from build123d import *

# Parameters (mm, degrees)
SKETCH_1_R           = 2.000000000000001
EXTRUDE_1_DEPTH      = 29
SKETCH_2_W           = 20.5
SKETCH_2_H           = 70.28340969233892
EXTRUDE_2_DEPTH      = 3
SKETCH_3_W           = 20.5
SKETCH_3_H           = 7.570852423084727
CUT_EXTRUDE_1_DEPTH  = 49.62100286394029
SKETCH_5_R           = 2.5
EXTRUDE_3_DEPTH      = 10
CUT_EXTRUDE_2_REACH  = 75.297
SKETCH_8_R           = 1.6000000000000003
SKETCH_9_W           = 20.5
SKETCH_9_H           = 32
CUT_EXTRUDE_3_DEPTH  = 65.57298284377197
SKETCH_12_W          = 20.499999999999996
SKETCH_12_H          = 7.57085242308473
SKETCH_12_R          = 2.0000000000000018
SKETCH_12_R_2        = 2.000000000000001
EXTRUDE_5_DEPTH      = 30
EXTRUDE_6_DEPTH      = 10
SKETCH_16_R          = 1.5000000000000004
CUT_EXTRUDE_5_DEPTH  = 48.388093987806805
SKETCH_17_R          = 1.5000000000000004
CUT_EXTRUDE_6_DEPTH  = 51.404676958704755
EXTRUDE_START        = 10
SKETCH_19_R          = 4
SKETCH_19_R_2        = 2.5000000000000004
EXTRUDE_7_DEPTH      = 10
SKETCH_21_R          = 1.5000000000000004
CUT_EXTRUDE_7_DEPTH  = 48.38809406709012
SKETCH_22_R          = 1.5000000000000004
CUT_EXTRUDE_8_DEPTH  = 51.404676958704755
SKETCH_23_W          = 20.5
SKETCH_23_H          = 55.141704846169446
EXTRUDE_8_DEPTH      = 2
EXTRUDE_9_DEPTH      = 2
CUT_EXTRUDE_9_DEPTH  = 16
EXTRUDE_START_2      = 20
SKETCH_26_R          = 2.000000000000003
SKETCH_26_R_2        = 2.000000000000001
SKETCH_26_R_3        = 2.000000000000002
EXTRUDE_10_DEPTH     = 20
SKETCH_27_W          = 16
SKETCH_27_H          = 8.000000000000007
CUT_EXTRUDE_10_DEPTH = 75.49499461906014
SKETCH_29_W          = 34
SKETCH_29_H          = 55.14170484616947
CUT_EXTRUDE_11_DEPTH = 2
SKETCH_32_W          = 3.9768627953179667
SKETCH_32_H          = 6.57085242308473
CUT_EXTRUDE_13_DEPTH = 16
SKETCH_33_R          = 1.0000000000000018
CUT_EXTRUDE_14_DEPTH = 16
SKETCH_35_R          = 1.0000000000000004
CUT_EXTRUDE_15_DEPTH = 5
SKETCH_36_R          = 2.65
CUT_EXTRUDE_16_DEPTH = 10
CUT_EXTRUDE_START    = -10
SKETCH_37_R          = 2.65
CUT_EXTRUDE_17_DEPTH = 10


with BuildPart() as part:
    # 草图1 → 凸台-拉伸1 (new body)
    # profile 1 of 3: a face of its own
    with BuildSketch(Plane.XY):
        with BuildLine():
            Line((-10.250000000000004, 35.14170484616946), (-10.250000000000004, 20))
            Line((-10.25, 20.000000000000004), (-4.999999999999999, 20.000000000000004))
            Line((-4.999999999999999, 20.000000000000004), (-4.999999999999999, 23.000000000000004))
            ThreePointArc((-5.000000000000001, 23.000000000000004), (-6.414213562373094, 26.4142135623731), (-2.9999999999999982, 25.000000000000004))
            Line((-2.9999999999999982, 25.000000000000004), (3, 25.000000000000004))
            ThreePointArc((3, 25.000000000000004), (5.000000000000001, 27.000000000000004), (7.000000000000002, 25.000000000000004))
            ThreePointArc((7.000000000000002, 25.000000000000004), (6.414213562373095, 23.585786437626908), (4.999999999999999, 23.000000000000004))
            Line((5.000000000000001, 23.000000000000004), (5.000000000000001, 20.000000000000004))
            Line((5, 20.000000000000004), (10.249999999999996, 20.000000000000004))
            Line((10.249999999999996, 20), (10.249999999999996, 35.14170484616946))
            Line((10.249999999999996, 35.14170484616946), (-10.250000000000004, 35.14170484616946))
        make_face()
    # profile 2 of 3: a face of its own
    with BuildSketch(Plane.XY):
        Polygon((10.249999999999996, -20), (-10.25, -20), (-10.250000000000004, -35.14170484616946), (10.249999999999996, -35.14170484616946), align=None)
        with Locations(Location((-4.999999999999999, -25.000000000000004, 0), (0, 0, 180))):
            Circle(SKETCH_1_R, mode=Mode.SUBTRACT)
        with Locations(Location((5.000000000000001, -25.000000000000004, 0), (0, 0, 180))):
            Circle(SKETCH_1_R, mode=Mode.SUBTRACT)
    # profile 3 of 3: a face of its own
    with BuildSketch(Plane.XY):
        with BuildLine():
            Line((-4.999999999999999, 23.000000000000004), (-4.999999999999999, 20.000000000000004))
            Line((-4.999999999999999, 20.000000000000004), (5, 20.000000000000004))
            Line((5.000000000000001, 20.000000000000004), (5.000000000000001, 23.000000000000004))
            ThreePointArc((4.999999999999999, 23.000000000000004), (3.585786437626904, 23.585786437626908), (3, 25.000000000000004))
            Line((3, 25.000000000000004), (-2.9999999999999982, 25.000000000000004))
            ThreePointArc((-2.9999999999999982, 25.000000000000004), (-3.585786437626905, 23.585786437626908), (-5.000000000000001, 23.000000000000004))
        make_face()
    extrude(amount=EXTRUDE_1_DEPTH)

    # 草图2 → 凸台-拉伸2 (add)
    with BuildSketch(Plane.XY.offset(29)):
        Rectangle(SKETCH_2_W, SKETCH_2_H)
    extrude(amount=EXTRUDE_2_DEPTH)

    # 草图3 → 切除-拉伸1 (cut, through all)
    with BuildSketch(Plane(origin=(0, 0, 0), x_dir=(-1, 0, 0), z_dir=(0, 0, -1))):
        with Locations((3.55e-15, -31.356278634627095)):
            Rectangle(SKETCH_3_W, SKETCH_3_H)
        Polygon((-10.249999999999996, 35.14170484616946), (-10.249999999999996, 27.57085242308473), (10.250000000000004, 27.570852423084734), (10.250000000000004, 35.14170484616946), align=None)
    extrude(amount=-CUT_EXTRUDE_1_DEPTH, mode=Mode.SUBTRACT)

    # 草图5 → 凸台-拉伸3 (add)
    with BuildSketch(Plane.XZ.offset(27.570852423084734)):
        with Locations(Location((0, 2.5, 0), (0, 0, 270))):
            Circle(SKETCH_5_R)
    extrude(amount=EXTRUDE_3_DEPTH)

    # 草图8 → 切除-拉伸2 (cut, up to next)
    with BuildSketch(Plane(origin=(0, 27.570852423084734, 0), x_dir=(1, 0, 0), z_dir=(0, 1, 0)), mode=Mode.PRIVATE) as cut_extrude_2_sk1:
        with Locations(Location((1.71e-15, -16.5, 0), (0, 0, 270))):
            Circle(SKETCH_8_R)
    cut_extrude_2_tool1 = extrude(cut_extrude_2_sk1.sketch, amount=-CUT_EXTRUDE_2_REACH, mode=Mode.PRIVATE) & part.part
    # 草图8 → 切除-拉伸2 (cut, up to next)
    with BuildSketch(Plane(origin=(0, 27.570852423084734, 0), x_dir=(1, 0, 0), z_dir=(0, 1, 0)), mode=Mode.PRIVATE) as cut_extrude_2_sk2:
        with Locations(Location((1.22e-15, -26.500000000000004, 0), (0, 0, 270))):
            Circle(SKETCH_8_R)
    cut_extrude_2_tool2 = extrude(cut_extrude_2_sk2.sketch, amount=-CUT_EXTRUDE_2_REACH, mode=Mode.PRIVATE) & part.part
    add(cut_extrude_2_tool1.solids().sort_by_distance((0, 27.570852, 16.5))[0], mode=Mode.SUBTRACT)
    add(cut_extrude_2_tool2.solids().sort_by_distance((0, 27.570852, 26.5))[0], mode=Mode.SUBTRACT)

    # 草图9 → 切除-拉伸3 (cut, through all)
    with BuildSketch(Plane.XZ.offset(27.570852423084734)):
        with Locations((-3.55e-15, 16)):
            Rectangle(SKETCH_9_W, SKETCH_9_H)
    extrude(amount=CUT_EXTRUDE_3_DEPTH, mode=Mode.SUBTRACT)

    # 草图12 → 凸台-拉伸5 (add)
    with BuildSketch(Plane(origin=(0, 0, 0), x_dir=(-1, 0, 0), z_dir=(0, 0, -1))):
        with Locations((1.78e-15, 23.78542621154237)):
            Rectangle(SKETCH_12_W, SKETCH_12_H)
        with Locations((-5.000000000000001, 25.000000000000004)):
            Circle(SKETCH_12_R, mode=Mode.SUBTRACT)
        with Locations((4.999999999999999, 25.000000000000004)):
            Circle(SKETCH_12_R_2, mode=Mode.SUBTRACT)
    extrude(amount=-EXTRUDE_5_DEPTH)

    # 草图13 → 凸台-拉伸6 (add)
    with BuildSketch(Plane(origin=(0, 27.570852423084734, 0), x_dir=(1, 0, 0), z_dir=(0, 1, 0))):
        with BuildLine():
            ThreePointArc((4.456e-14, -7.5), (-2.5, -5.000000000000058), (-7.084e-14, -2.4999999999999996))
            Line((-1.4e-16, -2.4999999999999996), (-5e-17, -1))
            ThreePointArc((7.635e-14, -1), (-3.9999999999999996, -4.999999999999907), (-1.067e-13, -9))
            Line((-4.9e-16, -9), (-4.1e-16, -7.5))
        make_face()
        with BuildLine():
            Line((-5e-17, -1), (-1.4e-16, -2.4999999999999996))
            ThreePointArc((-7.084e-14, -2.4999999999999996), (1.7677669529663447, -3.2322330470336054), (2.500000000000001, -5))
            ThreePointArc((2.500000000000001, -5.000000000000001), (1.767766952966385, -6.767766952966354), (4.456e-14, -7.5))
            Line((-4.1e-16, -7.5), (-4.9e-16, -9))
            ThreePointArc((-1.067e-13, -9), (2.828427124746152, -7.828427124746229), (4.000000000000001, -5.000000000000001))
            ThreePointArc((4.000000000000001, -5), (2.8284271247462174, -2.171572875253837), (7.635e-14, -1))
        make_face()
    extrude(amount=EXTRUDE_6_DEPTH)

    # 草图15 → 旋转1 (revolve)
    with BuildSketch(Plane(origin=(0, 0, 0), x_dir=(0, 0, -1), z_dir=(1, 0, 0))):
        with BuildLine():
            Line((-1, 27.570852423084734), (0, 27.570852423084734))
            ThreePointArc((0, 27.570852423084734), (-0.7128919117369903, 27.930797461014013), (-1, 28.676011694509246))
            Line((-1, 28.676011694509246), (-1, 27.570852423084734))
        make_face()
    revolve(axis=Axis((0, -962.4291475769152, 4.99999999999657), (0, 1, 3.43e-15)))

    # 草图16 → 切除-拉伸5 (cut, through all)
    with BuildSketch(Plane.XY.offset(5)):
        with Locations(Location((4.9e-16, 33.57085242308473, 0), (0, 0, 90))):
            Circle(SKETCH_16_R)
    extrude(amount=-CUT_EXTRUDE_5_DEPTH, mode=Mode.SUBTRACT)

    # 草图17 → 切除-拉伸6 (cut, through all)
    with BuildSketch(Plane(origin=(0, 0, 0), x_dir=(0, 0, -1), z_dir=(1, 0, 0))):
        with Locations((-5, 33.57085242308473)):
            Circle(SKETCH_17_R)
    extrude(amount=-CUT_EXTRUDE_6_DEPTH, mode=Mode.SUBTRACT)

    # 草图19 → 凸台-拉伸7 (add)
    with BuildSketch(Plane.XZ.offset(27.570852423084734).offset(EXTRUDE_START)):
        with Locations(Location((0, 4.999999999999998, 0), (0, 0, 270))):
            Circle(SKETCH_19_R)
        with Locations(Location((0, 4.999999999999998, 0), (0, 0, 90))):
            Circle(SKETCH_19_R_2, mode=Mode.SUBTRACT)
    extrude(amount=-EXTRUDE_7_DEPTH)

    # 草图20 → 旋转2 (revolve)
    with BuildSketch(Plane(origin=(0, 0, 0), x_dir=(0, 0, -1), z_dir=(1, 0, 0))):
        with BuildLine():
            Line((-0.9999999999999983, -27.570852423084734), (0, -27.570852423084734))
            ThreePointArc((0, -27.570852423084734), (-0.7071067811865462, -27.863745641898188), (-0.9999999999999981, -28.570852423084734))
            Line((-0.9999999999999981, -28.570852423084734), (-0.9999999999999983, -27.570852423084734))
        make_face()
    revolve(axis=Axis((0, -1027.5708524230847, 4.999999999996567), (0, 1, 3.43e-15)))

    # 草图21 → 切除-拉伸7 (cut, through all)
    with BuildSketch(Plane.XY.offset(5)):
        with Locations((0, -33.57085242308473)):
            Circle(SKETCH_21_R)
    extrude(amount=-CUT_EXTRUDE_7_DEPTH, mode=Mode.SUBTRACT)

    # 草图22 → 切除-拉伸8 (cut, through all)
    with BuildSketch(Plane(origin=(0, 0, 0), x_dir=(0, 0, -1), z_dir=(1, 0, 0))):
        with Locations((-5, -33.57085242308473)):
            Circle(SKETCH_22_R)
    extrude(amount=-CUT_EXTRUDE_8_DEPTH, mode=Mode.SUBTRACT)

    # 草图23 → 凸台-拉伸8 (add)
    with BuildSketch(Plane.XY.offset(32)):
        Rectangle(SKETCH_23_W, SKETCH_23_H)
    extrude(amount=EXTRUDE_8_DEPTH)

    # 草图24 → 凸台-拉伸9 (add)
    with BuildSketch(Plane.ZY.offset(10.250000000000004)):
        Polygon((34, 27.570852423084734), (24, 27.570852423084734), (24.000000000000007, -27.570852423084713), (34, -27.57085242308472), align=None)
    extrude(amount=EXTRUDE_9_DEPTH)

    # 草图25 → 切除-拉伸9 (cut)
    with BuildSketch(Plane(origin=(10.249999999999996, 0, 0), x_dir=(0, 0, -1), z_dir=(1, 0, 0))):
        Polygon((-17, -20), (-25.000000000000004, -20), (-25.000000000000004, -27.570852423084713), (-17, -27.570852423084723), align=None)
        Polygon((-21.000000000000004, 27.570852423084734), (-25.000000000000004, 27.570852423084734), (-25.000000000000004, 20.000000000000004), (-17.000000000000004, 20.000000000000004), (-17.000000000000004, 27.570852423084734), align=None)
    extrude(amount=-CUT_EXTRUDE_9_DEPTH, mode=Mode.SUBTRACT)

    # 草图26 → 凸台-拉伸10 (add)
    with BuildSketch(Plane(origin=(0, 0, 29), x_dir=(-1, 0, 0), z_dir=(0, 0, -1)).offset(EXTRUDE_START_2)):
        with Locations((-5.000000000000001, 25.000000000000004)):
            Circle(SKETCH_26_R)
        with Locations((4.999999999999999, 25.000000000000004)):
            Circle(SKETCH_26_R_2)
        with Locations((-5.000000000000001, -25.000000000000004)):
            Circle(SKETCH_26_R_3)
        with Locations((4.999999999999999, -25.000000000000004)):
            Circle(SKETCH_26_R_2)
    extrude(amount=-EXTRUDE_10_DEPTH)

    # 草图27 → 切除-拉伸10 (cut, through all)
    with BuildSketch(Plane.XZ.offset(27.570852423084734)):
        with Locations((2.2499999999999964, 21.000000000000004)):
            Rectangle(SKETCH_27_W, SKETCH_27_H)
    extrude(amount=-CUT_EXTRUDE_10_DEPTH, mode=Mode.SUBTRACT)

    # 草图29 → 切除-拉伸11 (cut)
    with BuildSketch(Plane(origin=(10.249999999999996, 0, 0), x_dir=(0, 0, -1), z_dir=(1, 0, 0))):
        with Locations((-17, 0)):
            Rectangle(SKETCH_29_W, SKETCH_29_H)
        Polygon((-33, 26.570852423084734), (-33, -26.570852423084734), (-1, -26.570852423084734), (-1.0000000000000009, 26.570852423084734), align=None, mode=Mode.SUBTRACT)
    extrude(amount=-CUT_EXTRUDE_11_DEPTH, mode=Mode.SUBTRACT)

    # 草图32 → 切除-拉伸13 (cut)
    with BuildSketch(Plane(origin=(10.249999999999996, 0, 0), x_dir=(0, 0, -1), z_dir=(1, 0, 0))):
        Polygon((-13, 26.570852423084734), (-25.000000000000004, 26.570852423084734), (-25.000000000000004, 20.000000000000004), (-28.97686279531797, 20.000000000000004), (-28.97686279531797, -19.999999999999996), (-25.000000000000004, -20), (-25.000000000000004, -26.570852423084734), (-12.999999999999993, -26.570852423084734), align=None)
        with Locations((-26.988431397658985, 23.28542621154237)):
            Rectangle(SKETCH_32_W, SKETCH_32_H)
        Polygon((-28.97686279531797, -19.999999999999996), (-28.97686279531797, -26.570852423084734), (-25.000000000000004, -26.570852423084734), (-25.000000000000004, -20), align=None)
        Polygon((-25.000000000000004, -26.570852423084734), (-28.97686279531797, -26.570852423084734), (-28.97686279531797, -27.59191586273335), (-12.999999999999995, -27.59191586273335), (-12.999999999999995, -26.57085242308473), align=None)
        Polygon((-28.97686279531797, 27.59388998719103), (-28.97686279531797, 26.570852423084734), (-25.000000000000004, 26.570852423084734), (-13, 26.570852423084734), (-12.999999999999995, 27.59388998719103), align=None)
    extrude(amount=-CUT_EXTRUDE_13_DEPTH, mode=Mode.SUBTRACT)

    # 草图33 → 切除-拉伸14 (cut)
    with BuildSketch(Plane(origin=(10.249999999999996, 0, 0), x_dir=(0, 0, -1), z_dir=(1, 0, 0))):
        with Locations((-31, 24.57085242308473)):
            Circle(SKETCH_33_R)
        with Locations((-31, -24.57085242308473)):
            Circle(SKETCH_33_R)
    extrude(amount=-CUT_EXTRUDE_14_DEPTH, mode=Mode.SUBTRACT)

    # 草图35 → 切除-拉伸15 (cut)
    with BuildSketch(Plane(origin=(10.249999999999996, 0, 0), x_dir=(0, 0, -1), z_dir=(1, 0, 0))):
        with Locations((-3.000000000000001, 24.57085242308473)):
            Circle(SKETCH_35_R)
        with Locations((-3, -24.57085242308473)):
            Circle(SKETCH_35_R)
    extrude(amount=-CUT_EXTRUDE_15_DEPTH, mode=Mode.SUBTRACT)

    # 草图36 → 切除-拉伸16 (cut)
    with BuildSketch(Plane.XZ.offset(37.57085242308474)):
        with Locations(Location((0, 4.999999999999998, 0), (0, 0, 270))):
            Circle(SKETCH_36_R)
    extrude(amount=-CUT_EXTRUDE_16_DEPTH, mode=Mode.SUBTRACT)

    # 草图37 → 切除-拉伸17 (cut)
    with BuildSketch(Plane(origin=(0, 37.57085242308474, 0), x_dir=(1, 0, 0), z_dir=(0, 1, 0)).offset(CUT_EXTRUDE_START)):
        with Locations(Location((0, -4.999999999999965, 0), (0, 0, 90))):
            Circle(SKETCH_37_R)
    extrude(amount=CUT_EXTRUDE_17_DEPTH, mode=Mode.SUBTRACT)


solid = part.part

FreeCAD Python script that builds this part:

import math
import FreeCAD as App
import Part
import Sketcher
Q = App.Units.Quantity

doc = App.newDocument("Part")
body = doc.addObject("PartDesign::Body", "Body")
body.AllowCompound = True

sketch1 = body.newObject("Sketcher::SketchObject", "Sketch")
sketch1.AttachmentSupport = (doc.getObject("XY_Plane"), [""])
sketch1.MapMode = "FlatFace"
sketch1.addGeometry([
    Part.LineSegment(App.Vector(-10.2, 35.1, 0), App.Vector(-10.2, 20, 0)),
    Part.LineSegment(App.Vector(-10.2, 20, 0), App.Vector(10.2, 20, 0)),
    Part.LineSegment(App.Vector(10.2, 20, 0), App.Vector(10.2, 35.1, 0)),
    Part.LineSegment(App.Vector(10.2, 35.1, 0), App.Vector(-10.2, 35.1, 0)),
    Part.Circle(App.Vector(-5, 25, 0), App.Vector(0, 0, 1), 2),
    Part.Circle(App.Vector(5, 25, 0), App.Vector(0, 0, 1), 2),
    Part.LineSegment(App.Vector(10.2, -20, 0), App.Vector(-10.2, -20, 0)),
    Part.LineSegment(App.Vector(-10.2, -20, 0), App.Vector(-10.2, -35.1, 0)),
    Part.LineSegment(App.Vector(-10.2, -35.1, 0), App.Vector(10.2, -35.1, 0)),
    Part.LineSegment(App.Vector(10.2, -35.1, 0), App.Vector(10.2, -20, 0)),
    Part.Circle(App.Vector(-5, -25, 0), App.Vector(0, 0, 1), 2),
    Part.Circle(App.Vector(5, -25, 0), App.Vector(0, 0, 1), 2),
], False)
sketch1.addConstraint([
    Sketcher.Constraint("Coincident", 0, 2, 1, 1),
    Sketcher.Constraint("Coincident", 1, 2, 2, 1),
    Sketcher.Constraint("Coincident", 2, 2, 3, 1),
    Sketcher.Constraint("Coincident", 3, 2, 0, 1),
    Sketcher.Constraint("Coincident", 6, 2, 7, 1),
    Sketcher.Constraint("Coincident", 7, 2, 8, 1),
    Sketcher.Constraint("Coincident", 8, 2, 9, 1),
    Sketcher.Constraint("Coincident", 9, 2, 6, 1),
    Sketcher.Constraint("Vertical", 0),
    Sketcher.Constraint("Horizontal", 1),
    Sketcher.Constraint("Vertical", 2),
    Sketcher.Constraint("Horizontal", 3),
    Sketcher.Constraint("Horizontal", 6),
    Sketcher.Constraint("Vertical", 7),
    Sketcher.Constraint("Horizontal", 8),
    Sketcher.Constraint("Vertical", 9),
    Sketcher.Constraint("Equal", 4, 5),
    Sketcher.Constraint("Equal", 5, 10),
    Sketcher.Constraint("Equal", 10, 11),
    Sketcher.Constraint("Symmetric", 5, 3, 10, 3, -1, 1),
    Sketcher.Constraint("Symmetric", 4, 3, 11, 3, -1, 1),
    Sketcher.Constraint("Symmetric", 1, 2, 6, 2, -1, 1),
    Sketcher.Constraint("Symmetric", 3, 2, 8, 2, -1, 1),
    Sketcher.Constraint("Symmetric", 4, 3, 5, 3, -2),
    Sketcher.Constraint("Vertical", 3, 2, 6, 2),
    Sketcher.Constraint("Diameter", 4, Q("4 mm")),
    Sketcher.Constraint("DistanceX", 1, 1, 1, 2, Q("20.5 mm")),
    Sketcher.Constraint("DistanceX", 4, 3, -1, 1, Q("5 mm")),
    Sketcher.Constraint("DistanceY", -1, 1, 4, 3, Q("25 mm")),
    Sketcher.Constraint("DistanceY", -1, 1, 0, 2, Q("20 mm")),
    Sketcher.Constraint("DistanceY", 0, 2, 0, 1, Q("15.141705 mm")),
])
pad1 = body.newObject("PartDesign::Pad", "Pad")
pad1.Profile = sketch1
pad1.Length = 29

sketch2 = body.newObject("Sketcher::SketchObject", "Sketch001")
sketch2.AttachmentSupport = (doc.getObject("XY_Plane"), [""])
sketch2.MapMode = "FlatFace"
sketch2.AttachmentOffset = App.Placement(App.Vector(0, 0, 29), App.Rotation())
sketch2.addGeometry([
    Part.LineSegment(App.Vector(-10, 35, 0), App.Vector(-10, -35, 0)),
    Part.LineSegment(App.Vector(-10, -35, 0), App.Vector(10, -35, 0)),
    Part.LineSegment(App.Vector(10, -35, 0), App.Vector(10, 35, 0)),
    Part.LineSegment(App.Vector(10, 35, 0), App.Vector(-10, 35, 0)),
], False)
sketch2.addConstraint([
    Sketcher.Constraint("Coincident", 0, 2, 1, 1),
    Sketcher.Constraint("Coincident", 1, 2, 2, 1),
    Sketcher.Constraint("Coincident", 2, 2, 3, 1),
    Sketcher.Constraint("Coincident", 3, 2, 0, 1),
    Sketcher.Constraint("Vertical", 0),
    Sketcher.Constraint("Horizontal", 1),
    Sketcher.Constraint("Vertical", 2),
    Sketcher.Constraint("Horizontal", 3),
    Sketcher.Constraint("Symmetric", 0, 2, 2, 2, -1, 1),
    Sketcher.Constraint("DistanceX", 1, 1, 1, 2, Q("20.5 mm")),
    Sketcher.Constraint("DistanceY", 0, 2, 0, 1, Q("70.28341 mm")),
])
pad2 = body.newObject("PartDesign::Pad", "Pad001")
pad2.Profile = sketch2
pad2.Length = 3

sketch3 = body.newObject("Sketcher::SketchObject", "Sketch002")
sketch3.AttachmentSupport = (doc.getObject("XY_Plane"), [""])
sketch3.MapMode = "FlatFace"
sketch3.addGeometry([
    Part.LineSegment(App.Vector(10, -28, 0), App.Vector(10, -35, 0)),
    Part.LineSegment(App.Vector(10, -35, 0), App.Vector(-10, -35, 0)),
    Part.LineSegment(App.Vector(-10, -35, 0), App.Vector(-10, -28, 0)),
    Part.LineSegment(App.Vector(-10, -28, 0), App.Vector(10, -28, 0)),
    Part.LineSegment(App.Vector(10, 35, 0), App.Vector(10, 28, 0)),
    Part.LineSegment(App.Vector(10, 28, 0), App.Vector(-10, 28, 0)),
    Part.LineSegment(App.Vector(-10, 28, 0), App.Vector(-10, 35, 0)),
    Part.LineSegment(App.Vector(-10, 35, 0), App.Vector(10, 35, 0)),
], False)
sketch3.addConstraint([
    Sketcher.Constraint("Coincident", 0, 2, 1, 1),
    Sketcher.Constraint("Coincident", 1, 2, 2, 1),
    Sketcher.Constraint("Coincident", 2, 2, 3, 1),
    Sketcher.Constraint("Coincident", 3, 2, 0, 1),
    Sketcher.Constraint("Coincident", 4, 2, 5, 1),
    Sketcher.Constraint("Coincident", 5, 2, 6, 1),
    Sketcher.Constraint("Coincident", 6, 2, 7, 1),
    Sketcher.Constraint("Coincident", 7, 2, 4, 1),
    Sketcher.Constraint("Vertical", 0),
    Sketcher.Constraint("Horizontal", 1),
    Sketcher.Constraint("Vertical", 2),
    Sketcher.Constraint("Horizontal", 3),
    Sketcher.Constraint("Vertical", 4),
    Sketcher.Constraint("Horizontal", 5),
    Sketcher.Constraint("Vertical", 6),
    Sketcher.Constraint("Horizontal", 7),
    Sketcher.Constraint("Symmetric", 2, 2, 4, 2, -1, 1),
    Sketcher.Constraint("Symmetric", 0, 2, 6, 2, -1, 1),
    Sketcher.Constraint("Vertical", 3, 2, 4, 2),
    Sketcher.Constraint("DistanceX", 1, 2, 1, 1, Q("20.5 mm")),
    Sketcher.Constraint("DistanceY", 0, 2, 0, 1, Q("7.570852 mm")),
    Sketcher.Constraint("DistanceY", 1, 2, 6, 2, Q("70.28341 mm")),
])
pocket1 = body.newObject("PartDesign::Pocket", "Pocket")
pocket1.Profile = sketch3
pocket1.Type = "ThroughAll"
pocket1.Reversed = True

sketch4 = body.newObject("Sketcher::SketchObject", "Sketch003")
sketch4.AttachmentSupport = (doc.getObject("XZ_Plane"), [""])
sketch4.MapMode = "FlatFace"
sketch4.AttachmentOffset = App.Placement(App.Vector(0, 0, 27.570852), App.Rotation())
sketch4.addGeometry(Part.Circle(App.Vector(0, 2.5, 0), App.Vector(0, 0, 1), 2.5), False)
sketch4.addConstraint([
    Sketcher.Constraint("PointOnObject", 0, 3, -2),
    Sketcher.Constraint("Diameter", 0, Q("5 mm")),
    Sketcher.Constraint("DistanceY", -1, 1, 0, 3, Q("2.5 mm")),
])
pad3 = body.newObject("PartDesign::Pad", "Pad002")
pad3.Profile = sketch4
pad3.Length = 10

sketch5 = body.newObject("Sketcher::SketchObject", "Sketch004")
sketch5.AttachmentSupport = (doc.getObject("XZ_Plane"), [""])
sketch5.MapMode = "FlatFace"
sketch5.AttachmentOffset = App.Placement(App.Vector(0, 0, -27.570852), App.Rotation())
sketch5.addGeometry(Part.Circle(App.Vector(0, 16.5, 0), App.Vector(0, 0, 1), 1.6), False)
sketch5.addConstraint([
    Sketcher.Constraint("PointOnObject", 0, 3, -2),
    Sketcher.Constraint("Diameter", 0, Q("3.2 mm")),
    Sketcher.Constraint("DistanceY", -1, 1, 0, 3, Q("16.5 mm")),
])
pocket2 = body.newObject("PartDesign::Pocket", "Pocket001")
pocket2.Profile = sketch5
pocket2.Type = "UpToFirst"
pocket2.Reversed = True

sketch6 = body.newObject("Sketcher::SketchObject", "Sketch005")
sketch6.AttachmentSupport = (doc.getObject("XZ_Plane"), [""])
sketch6.MapMode = "FlatFace"
sketch6.AttachmentOffset = App.Placement(App.Vector(0, 0, -27.570852), App.Rotation())
sketch6.addGeometry(Part.Circle(App.Vector(0, 26.5, 0), App.Vector(0, 0, 1), 1.6), False)
sketch6.addConstraint([
    Sketcher.Constraint("PointOnObject", 0, 3, -2),
    Sketcher.Constraint("Diameter", 0, Q("3.2 mm")),
    Sketcher.Constraint("DistanceY", -1, 1, 0, 3, Q("26.5 mm")),
])
pocket3 = body.newObject("PartDesign::Pocket", "Pocket002")
pocket3.Profile = sketch6
pocket3.Type = "UpToFirst"
pocket3.Reversed = True

sketch7 = body.newObject("Sketcher::SketchObject", "Sketch006")
sketch7.AttachmentSupport = (doc.getObject("XZ_Plane"), [""])
sketch7.MapMode = "FlatFace"
sketch7.AttachmentOffset = App.Placement(App.Vector(0, 0, 27.570852), App.Rotation())
sketch7.addGeometry([
    Part.LineSegment(App.Vector(-10, 32, 0), App.Vector(-10, 0, 0)),
    Part.LineSegment(App.Vector(-10, 0, 0), App.Vector(10, 0, 0)),
    Part.LineSegment(App.Vector(10, 0, 0), App.Vector(10, 32, 0)),
    Part.LineSegment(App.Vector(10, 32, 0), App.Vector(-10, 32, 0)),
], False)
sketch7.addConstraint([
    Sketcher.Constraint("Coincident", 0, 2, 1, 1),
    Sketcher.Constraint("Coincident", 1, 2, 2, 1),
    Sketcher.Constraint("Coincident", 2, 2, 3, 1),
    Sketcher.Constraint("Coincident", 3, 2, 0, 1),
    Sketcher.Constraint("Vertical", 0),
    Sketcher.Constraint("Horizontal", 1),
    Sketcher.Constraint("Vertical", 2),
    Sketcher.Constraint("Horizontal", 3),
    Sketcher.Constraint("Symmetric", 0, 2, 1, 2, -1, 1),
    Sketcher.Constraint("DistanceY", 0, 2, 0, 1, Q("32 mm")),
    Sketcher.Constraint("DistanceX", 1, 1, 1, 2, Q("20.5 mm")),
])
pocket4 = body.newObject("PartDesign::Pocket", "Pocket003")
pocket4.Profile = sketch7
pocket4.Type = "ThroughAll"
pocket4.Reversed = True

sketch8 = body.newObject("Sketcher::SketchObject", "Sketch007")
sketch8.AttachmentSupport = (doc.getObject("XY_Plane"), [""])
sketch8.MapMode = "FlatFace"
sketch8.addGeometry([
    Part.LineSegment(App.Vector(10.2, 27.6, 0), App.Vector(10.2, 20, 0)),
    Part.LineSegment(App.Vector(10.2, 20, 0), App.Vector(-10.2, 20, 0)),
    Part.LineSegment(App.Vector(-10.2, 20, 0), App.Vector(-10.2, 27.6, 0)),
    Part.LineSegment(App.Vector(-10.2, 27.6, 0), App.Vector(10.2, 27.6, 0)),
    Part.Circle(App.Vector(5, 25, 0), App.Vector(0, 0, 1), 2),
    Part.Circle(App.Vector(-5, 25, 0), App.Vector(0, 0, 1), 2),
], False)
sketch8.addConstraint([
    Sketcher.Constraint("Coincident", 0, 2, 1, 1),
    Sketcher.Constraint("Coincident", 1, 2, 2, 1),
    Sketcher.Constraint("Coincident", 2, 2, 3, 1),
    Sketcher.Constraint("Coincident", 3, 2, 0, 1),
    Sketcher.Constraint("Vertical", 0),
    Sketcher.Constraint("Horizontal", 1),
    Sketcher.Constraint("Vertical", 2),
    Sketcher.Constraint("Horizontal", 3),
    Sketcher.Constraint("Equal", 4, 5),
    Sketcher.Constraint("Symmetric", 4, 3, 5, 3, -2),
    Sketcher.Constraint("Diameter", 4, Q("4 mm")),
    Sketcher.Constraint("DistanceX", 1, 2, 1, 1, Q("20.5 mm")),
    Sketcher.Constraint("DistanceX", -1, 1, 4, 3, Q("5 mm")),
    Sketcher.Constraint("DistanceY", -1, 1, 4, 3, Q("25 mm")),
    Sketcher.Constraint("DistanceY", -1, 1, 0, 2, Q("20 mm")),
    Sketcher.Constraint("DistanceX", -1, 1, 0, 2, Q("10.25 mm")),
    Sketcher.Constraint("DistanceY", 0, 2, 0, 1, Q("7.570852 mm")),
])
pad4 = body.newObject("PartDesign::Pad", "Pad003")
pad4.Profile = sketch8
pad4.Length = 30

sketch9 = body.newObject("Sketcher::SketchObject", "Sketch008")
sketch9.AttachmentSupport = (doc.getObject("XZ_Plane"), [""])
sketch9.MapMode = "FlatFace"
sketch9.AttachmentOffset = App.Placement(App.Vector(0, 0, -27.570852), App.Rotation())
sketch9.addGeometry([
    Part.Circle(App.Vector(0, 5, 0), App.Vector(0, 0, 1), 4),
    Part.Circle(App.Vector(0, 5, 0), App.Vector(0, 0, 1), 2.5),
], False)
sketch9.addConstraint([
    Sketcher.Constraint("Coincident", 1, 3, 0, 3),
    Sketcher.Constraint("PointOnObject", 0, 3, -2),
    Sketcher.Constraint("Diameter", 0, Q("8 mm")),
    Sketcher.Constraint("Diameter", 1, Q("5 mm")),
    Sketcher.Constraint("DistanceY", -1, 1, 0, 3, Q("5 mm")),
])
pad5 = body.newObject("PartDesign::Pad", "Pad004")
pad5.Profile = sketch9
pad5.Length = 10
pad5.Reversed = True

sketch10 = body.newObject("Sketcher::SketchObject", "Sketch009")
sketch10.AttachmentSupport = (doc.getObject("YZ_Plane"), [""])
sketch10.MapMode = "FlatFace"
sketch10.addGeometry([
    Part.LineSegment(App.Vector(27.6, 1, 0), App.Vector(27.6, 0, 0)),
    Part.ArcOfCircle(Part.Circle(App.Vector(28.7, -0.1, 0), App.Vector(0, 0, 1), 1.1), math.radians(90), math.radians(174)),
    Part.LineSegment(App.Vector(28.7, 1, 0), App.Vector(27.6, 1, 0)),
], False)
sketch10.addGeometry(Part.LineSegment(App.Vector(27.6, 5, 0), App.Vector(28.7, 5, 0)), True)
sketch10.addConstraint([
    Sketcher.Constraint("Coincident", 0, 2, 1, 2),
    Sketcher.Constraint("Tangent", 1, 1, 2, 1),
    Sketcher.Constraint("Coincident", 2, 2, 0, 1),
    Sketcher.Constraint("Vertical", 0),
    Sketcher.Constraint("Horizontal", 2),
    Sketcher.Constraint("Horizontal", 3),
    Sketcher.Constraint("PointOnObject", 0, 2, -1),
    Sketcher.Constraint("Vertical", 2, 2, 3, 1),
    Sketcher.Constraint("Vertical", 1, 1, 3, 2),
    Sketcher.Constraint("DistanceY", 0, 2, 0, 1, Q("1 mm")),
    Sketcher.Constraint("DistanceY", -1, 1, 3, 1, Q("5 mm")),
    Sketcher.Constraint("Radius", 1, Q("1.110689 mm")),
    Sketcher.Constraint("DistanceX", -1, 1, 1, 3, Q("28.676012 mm")),
])
revolution = body.newObject("PartDesign::Revolution", "Revolution")
revolution.Profile = sketch10
revolution.ReferenceAxis = (sketch10, ["Axis0"])
revolution.Angle = 360

sketch11 = body.newObject("Sketcher::SketchObject", "Sketch010")
sketch11.AttachmentSupport = (doc.getObject("XY_Plane"), [""])
sketch11.MapMode = "FlatFace"
sketch11.AttachmentOffset = App.Placement(App.Vector(0, 0, 5), App.Rotation())
sketch11.addGeometry(Part.Circle(App.Vector(0, 33.6, 0), App.Vector(0, 0, 1), 1.5), False)
sketch11.addConstraint([
    Sketcher.Constraint("PointOnObject", 0, 3, -2),
    Sketcher.Constraint("Diameter", 0, Q("3 mm")),
    Sketcher.Constraint("DistanceY", -1, 1, 0, 3, Q("33.570852 mm")),
])
pocket5 = body.newObject("PartDesign::Pocket", "Pocket004")
pocket5.Profile = sketch11
pocket5.Type = "ThroughAll"

sketch12 = body.newObject("Sketcher::SketchObject", "Sketch011")
sketch12.AttachmentSupport = (doc.getObject("YZ_Plane"), [""])
sketch12.MapMode = "FlatFace"
sketch12.addGeometry(Part.Circle(App.Vector(33.6, 5, 0), App.Vector(0, 0, 1), 1.5), False)
sketch12.addConstraint([
    Sketcher.Constraint("Diameter", 0, Q("3 mm")),
    Sketcher.Constraint("DistanceY", -1, 1, 0, 3, Q("5 mm")),
    Sketcher.Constraint("DistanceX", -1, 1, 0, 3, Q("33.570852 mm")),
])
pocket6 = body.newObject("PartDesign::Pocket", "Pocket005")
pocket6.Profile = sketch12
pocket6.Type = "ThroughAll"

sketch13 = body.newObject("Sketcher::SketchObject", "Sketch012")
sketch13.AttachmentSupport = (doc.getObject("XZ_Plane"), [""])
sketch13.MapMode = "FlatFace"
sketch13.AttachmentOffset = App.Placement(App.Vector(0, 0, 37.570852), App.Rotation())
sketch13.addGeometry([
    Part.Circle(App.Vector(0, 5, 0), App.Vector(0, 0, 1), 4),
    Part.Circle(App.Vector(0, 5, 0), App.Vector(0, 0, 1), 2.5),
], False)
sketch13.addConstraint([
    Sketcher.Constraint("Coincident", 1, 3, 0, 3),
    Sketcher.Constraint("PointOnObject", 0, 3, -2),
    Sketcher.Constraint("Diameter", 0, Q("8 mm")),
    Sketcher.Constraint("Diameter", 1, Q("5 mm")),
    Sketcher.Constraint("DistanceY", -1, 1, 0, 3, Q("5 mm")),
])
pad6 = body.newObject("PartDesign::Pad", "Pad005")
pad6.Profile = sketch13
pad6.Length = 10
pad6.Reversed = True

sketch14 = body.newObject("Sketcher::SketchObject", "Sketch013")
sketch14.AttachmentSupport = (doc.getObject("YZ_Plane"), [""])
sketch14.MapMode = "FlatFace"
sketch14.addGeometry([
    Part.LineSegment(App.Vector(-27.6, 0, 0), App.Vector(-27.6, 1, 0)),
    Part.LineSegment(App.Vector(-27.6, 1, 0), App.Vector(-28.6, 1, 0)),
    Part.ArcOfCircle(Part.Circle(App.Vector(-28.6, 0, 0), App.Vector(0, 0, 1), 1), math.radians(0), math.radians(90)),
], False)
sketch14.addGeometry(Part.LineSegment(App.Vector(-28.6, 5, 0), App.Vector(-27.6, 5, 0)), True)
sketch14.addConstraint([
    Sketcher.Constraint("Coincident", 0, 2, 1, 1),
    Sketcher.Constraint("Tangent", 1, 2, 2, 2),
    Sketcher.Constraint("Tangent", 2, 1, 0, 1),
    Sketcher.Constraint("Vertical", 0),
    Sketcher.Constraint("Horizontal", 1),
    Sketcher.Constraint("Horizontal", 3),
    Sketcher.Constraint("PointOnObject", 2, 3, -1),
    Sketcher.Constraint("Vertical", 1, 2, 3, 1),
    Sketcher.Constraint("Vertical", 2, 1, 3, 2),
    Sketcher.Constraint("Radius", 2, Q("1 mm")),
    Sketcher.Constraint("DistanceY", -1, 1, 3, 1, Q("5 mm")),
    Sketcher.Constraint("DistanceX", 2, 3, -1, 1, Q("28.570852 mm")),
])
revolution2 = body.newObject("PartDesign::Revolution", "Revolution001")
revolution2.Profile = sketch14
revolution2.ReferenceAxis = (sketch14, ["Axis0"])
revolution2.Angle = 360

sketch15 = body.newObject("Sketcher::SketchObject", "Sketch014")
sketch15.AttachmentSupport = (doc.getObject("XY_Plane"), [""])
sketch15.MapMode = "FlatFace"
sketch15.AttachmentOffset = App.Placement(App.Vector(0, 0, 5), App.Rotation())
sketch15.addGeometry(Part.Circle(App.Vector(0, -33.6, 0), App.Vector(0, 0, 1), 1.5), False)
sketch15.addConstraint([
    Sketcher.Constraint("PointOnObject", 0, 3, -2),
    Sketcher.Constraint("Diameter", 0, Q("3 mm")),
    Sketcher.Constraint("DistanceY", 0, 3, -1, 1, Q("33.570852 mm")),
])
pocket7 = body.newObject("PartDesign::Pocket", "Pocket006")
pocket7.Profile = sketch15
pocket7.Type = "ThroughAll"

sketch16 = body.newObject("Sketcher::SketchObject", "Sketch015")
sketch16.AttachmentSupport = (doc.getObject("YZ_Plane"), [""])
sketch16.MapMode = "FlatFace"
sketch16.addGeometry(Part.Circle(App.Vector(-33.6, 5, 0), App.Vector(0, 0, 1), 1.5), False)
sketch16.addConstraint([
    Sketcher.Constraint("Diameter", 0, Q("3 mm")),
    Sketcher.Constraint("DistanceY", -1, 1, 0, 3, Q("5 mm")),
    Sketcher.Constraint("DistanceX", 0, 3, -1, 1, Q("33.570852 mm")),
])
pocket8 = body.newObject("PartDesign::Pocket", "Pocket007")
pocket8.Profile = sketch16
pocket8.Type = "ThroughAll"

sketch17 = body.newObject("Sketcher::SketchObject", "Sketch016")
sketch17.AttachmentSupport = (doc.getObject("XY_Plane"), [""])
sketch17.MapMode = "FlatFace"
sketch17.AttachmentOffset = App.Placement(App.Vector(0, 0, 32), App.Rotation())
sketch17.addGeometry([
    Part.LineSegment(App.Vector(-10, 28, 0), App.Vector(-10, -28, 0)),
    Part.LineSegment(App.Vector(-10, -28, 0), App.Vector(10, -28, 0)),
    Part.LineSegment(App.Vector(10, -28, 0), App.Vector(10, 28, 0)),
    Part.LineSegment(App.Vector(10, 28, 0), App.Vector(-10, 28, 0)),
], False)
sketch17.addConstraint([
    Sketcher.Constraint("Coincident", 0, 2, 1, 1),
    Sketcher.Constraint("Coincident", 1, 2, 2, 1),
    Sketcher.Constraint("Coincident", 2, 2, 3, 1),
    Sketcher.Constraint("Coincident", 3, 2, 0, 1),
    Sketcher.Constraint("Vertical", 0),
    Sketcher.Constraint("Horizontal", 1),
    Sketcher.Constraint("Vertical", 2),
    Sketcher.Constraint("Horizontal", 3),
    Sketcher.Constraint("Symmetric", 0, 2, 2, 2, -1, 1),
    Sketcher.Constraint("DistanceX", 1, 1, 1, 2, Q("20.5 mm")),
    Sketcher.Constraint("DistanceY", 0, 2, 0, 1, Q("55.141705 mm")),
])
pad7 = body.newObject("PartDesign::Pad", "Pad006")
pad7.Profile = sketch17
pad7.Length = 2

sketch18 = body.newObject("Sketcher::SketchObject", "Sketch017")
sketch18.AttachmentSupport = (doc.getObject("YZ_Plane"), [""])
sketch18.MapMode = "FlatFace"
sketch18.AttachmentOffset = App.Placement(App.Vector(0, 0, -10.25), App.Rotation())
sketch18.addGeometry([
    Part.LineSegment(App.Vector(28, 34, 0), App.Vector(28, 24, 0)),
    Part.LineSegment(App.Vector(28, 24, 0), App.Vector(-28, 24, 0)),
    Part.LineSegment(App.Vector(-28, 24, 0), App.Vector(-28, 34, 0)),
    Part.LineSegment(App.Vector(-28, 34, 0), App.Vector(28, 34, 0)),
], False)
sketch18.addConstraint([
    Sketcher.Constraint("Coincident", 0, 2, 1, 1),
    Sketcher.Constraint("Coincident", 1, 2, 2, 1),
    Sketcher.Constraint("Coincident", 2, 2, 3, 1),
    Sketcher.Constraint("Coincident", 3, 2, 0, 1),
    Sketcher.Constraint("Vertical", 0),
    Sketcher.Constraint("Horizontal", 1),
    Sketcher.Constraint("Vertical", 2),
    Sketcher.Constraint("Horizontal", 3),
    Sketcher.Constraint("DistanceY", 0, 2, 0, 1, Q("10 mm")),
    Sketcher.Constraint("DistanceY", -1, 1, 0, 2, Q("24 mm")),
    Sketcher.Constraint("DistanceX", 1, 2, 1, 1, Q("55.141705 mm")),
    Sketcher.Constraint("DistanceX", -1, 1, 0, 2, Q("27.570852 mm")),
])
pad8 = body.newObject("PartDesign::Pad", "Pad007")
pad8.Profile = sketch18
pad8.Length = 2
pad8.Reversed = True

sketch19 = body.newObject("Sketcher::SketchObject", "Sketch018")
sketch19.AttachmentSupport = (doc.getObject("YZ_Plane"), [""])
sketch19.MapMode = "FlatFace"
sketch19.AttachmentOffset = App.Placement(App.Vector(0, 0, 10.25), App.Rotation())
sketch19.addGeometry([
    Part.LineSegment(App.Vector(-20, 17, 0), App.Vector(-20, 25, 0)),
    Part.LineSegment(App.Vector(-20, 25, 0), App.Vector(-28, 25, 0)),
    Part.LineSegment(App.Vector(-28, 25, 0), App.Vector(-28, 17, 0)),
    Part.LineSegment(App.Vector(-28, 17, 0), App.Vector(-20, 17, 0)),
    Part.LineSegment(App.Vector(28, 25, 0), App.Vector(20, 25, 0)),
    Part.LineSegment(App.Vector(20, 25, 0), App.Vector(20, 17, 0)),
    Part.LineSegment(App.Vector(20, 17, 0), App.Vector(28, 17, 0)),
    Part.LineSegment(App.Vector(28, 17, 0), App.Vector(28, 25, 0)),
], False)
sketch19.addConstraint([
    Sketcher.Constraint("Coincident", 0, 2, 1, 1),
    Sketcher.Constraint("Coincident", 1, 2, 2, 1),
    Sketcher.Constraint("Coincident", 2, 2, 3, 1),
    Sketcher.Constraint("Coincident", 3, 2, 0, 1),
    Sketcher.Constraint("Coincident", 4, 2, 5, 1),
    Sketcher.Constraint("Coincident", 5, 2, 6, 1),
    Sketcher.Constraint("Coincident", 6, 2, 7, 1),
    Sketcher.Constraint("Coincident", 7, 2, 4, 1),
    Sketcher.Constraint("Vertical", 0),
    Sketcher.Constraint("Horizontal", 1),
    Sketcher.Constraint("Vertical", 2),
    Sketcher.Constraint("Horizontal", 3),
    Sketcher.Constraint("Horizontal", 4),
    Sketcher.Constraint("Vertical", 5),
    Sketcher.Constraint("Horizontal", 6),
    Sketcher.Constraint("Vertical", 7),
    Sketcher.Constraint("Symmetric", 0, 2, 4, 2, -2),
    Sketcher.Constraint("Symmetric", 2, 2, 6, 2, -2),
    Sketcher.Constraint("DistanceY", 0, 1, 0, 2, Q("8 mm")),
    Sketcher.Constraint("DistanceX", 0, 2, -1, 1, Q("20 mm")),
    Sketcher.Constraint("DistanceY", -1, 1, 0, 2, Q("25 mm")),
    Sketcher.Constraint("DistanceX", 1, 2, 1, 1, Q("7.570852 mm")),
])
pocket9 = body.newObject("PartDesign::Pocket", "Pocket008")
pocket9.Profile = sketch19
pocket9.Length = 16

sketch20 = body.newObject("Sketcher::SketchObject", "Sketch019")
sketch20.AttachmentSupport = (doc.getObject("XY_Plane"), [""])
sketch20.MapMode = "FlatFace"
sketch20.AttachmentOffset = App.Placement(App.Vector(0, 0, 9), App.Rotation())
sketch20.addGeometry([
    Part.Circle(App.Vector(5, 25, 0), App.Vector(0, 0, 1), 2),
    Part.Circle(App.Vector(-5, 25, 0), App.Vector(0, 0, 1), 2),
    Part.Circle(App.Vector(5, -25, 0), App.Vector(0, 0, 1), 2),
    Part.Circle(App.Vector(-5, -25, 0), App.Vector(0, 0, 1), 2),
], False)
sketch20.addConstraint([
    Sketcher.Constraint("Equal", 0, 1),
    Sketcher.Constraint("Equal", 1, 2),
    Sketcher.Constraint("Equal", 2, 3),
    Sketcher.Constraint("Symmetric", 1, 3, 2, 3, -1, 1),
    Sketcher.Constraint("Symmetric", 0, 3, 3, 3, -1, 1),
    Sketcher.Constraint("Symmetric", 0, 3, 1, 3, -2),
    Sketcher.Constraint("Diameter", 0, Q("4 mm")),
    Sketcher.Constraint("DistanceX", -1, 1, 0, 3, Q("5 mm")),
    Sketcher.Constraint("DistanceY", -1, 1, 0, 3, Q("25 mm")),
])
pad9 = body.newObject("PartDesign::Pad", "Pad008")
pad9.Profile = sketch20
pad9.Length = 20

sketch21 = body.newObject("Sketcher::SketchObject", "Sketch020")
sketch21.AttachmentSupport = (doc.getObject("XZ_Plane"), [""])
sketch21.MapMode = "FlatFace"
sketch21.AttachmentOffset = App.Placement(App.Vector(0, 0, 27.570852), App.Rotation())
sketch21.addGeometry([
    Part.LineSegment(App.Vector(-6, 25, 0), App.Vector(-6, 17, 0)),
    Part.LineSegment(App.Vector(-6, 17, 0), App.Vector(10, 17, 0)),
    Part.LineSegment(App.Vector(10, 17, 0), App.Vector(10, 25, 0)),
    Part.LineSegment(App.Vector(10, 25, 0), App.Vector(-6, 25, 0)),
], False)
sketch21.addConstraint([
    Sketcher.Constraint("Coincident", 0, 2, 1, 1),
    Sketcher.Constraint("Coincident", 1, 2, 2, 1),
    Sketcher.Constraint("Coincident", 2, 2, 3, 1),
    Sketcher.Constraint("Coincident", 3, 2, 0, 1),
    Sketcher.Constraint("Vertical", 0),
    Sketcher.Constraint("Horizontal", 1),
    Sketcher.Constraint("Vertical", 2),
    Sketcher.Constraint("Horizontal", 3),
    Sketcher.Constraint("DistanceX", 1, 1, 1, 2, Q("16 mm")),
    Sketcher.Constraint("DistanceY", 0, 2, 0, 1, Q("8 mm")),
    Sketcher.Constraint("DistanceY", -1, 1, 0, 2, Q("17 mm")),
    Sketcher.Constraint("DistanceX", 0, 2, -1, 1, Q("5.75 mm")),
])
pocket10 = body.newObject("PartDesign::Pocket", "Pocket009")
pocket10.Profile = sketch21
pocket10.Type = "ThroughAll"

sketch22 = body.newObject("Sketcher::SketchObject", "Sketch021")
sketch22.AttachmentSupport = (doc.getObject("YZ_Plane"), [""])
sketch22.MapMode = "FlatFace"
sketch22.AttachmentOffset = App.Placement(App.Vector(0, 0, 10.25), App.Rotation())
sketch22.addGeometry([
    Part.LineSegment(App.Vector(28, 34, 0), App.Vector(-28, 34, 0)),
    Part.LineSegment(App.Vector(-28, 34, 0), App.Vector(-28, 0, 0)),
    Part.LineSegment(App.Vector(-28, 0, 0), App.Vector(28, 0, 0)),
    Part.LineSegment(App.Vector(28, 0, 0), App.Vector(28, 34, 0)),
    Part.LineSegment(App.Vector(-27, 33, 0), App.Vector(27, 33, 0)),
    Part.LineSegment(App.Vector(27, 33, 0), App.Vector(27, 1, 0)),
    Part.LineSegment(App.Vector(27, 1, 0), App.Vector(-27, 1, 0)),
    Part.LineSegment(App.Vector(-27, 1, 0), App.Vector(-27, 33, 0)),
], False)
sketch22.addConstraint([
    Sketcher.Constraint("Coincident", 0, 2, 1, 1),
    Sketcher.Constraint("Coincident", 1, 2, 2, 1),
    Sketcher.Constraint("Coincident", 2, 2, 3, 1),
    Sketcher.Constraint("Coincident", 3, 2, 0, 1),
    Sketcher.Constraint("Coincident", 4, 2, 5, 1),
    Sketcher.Constraint("Coincident", 5, 2, 6, 1),
    Sketcher.Constraint("Coincident", 6, 2, 7, 1),
    Sketcher.Constraint("Coincident", 7, 2, 4, 1),
    Sketcher.Constraint("Horizontal", 0),
    Sketcher.Constraint("Vertical", 1),
    Sketcher.Constraint("Horizontal", 2),
    Sketcher.Constraint("Vertical", 3),
    Sketcher.Constraint("Horizontal", 4),
    Sketcher.Constraint("Vertical", 5),
    Sketcher.Constraint("Horizontal", 6),
    Sketcher.Constraint("Vertical", 7),
    Sketcher.Constraint("Symmetric", 1, 2, 2, 2, -1, 1),
    Sketcher.Constraint("DistanceY", 1, 2, 1, 1, Q("34 mm")),
    Sketcher.Constraint("DistanceY", 5, 2, 5, 1, Q("32 mm")),
    Sketcher.Constraint("DistanceY", -1, 1, 4, 2, Q("33 mm")),
    Sketcher.Constraint("DistanceX", 4, 2, 3, 2, Q("1 mm")),
    Sketcher.Constraint("DistanceX", 1, 2, 6, 2, Q("1 mm")),
    Sketcher.Constraint("DistanceX", 0, 2, 0, 1, Q("55.141705 mm")),
])
pocket11 = body.newObject("PartDesign::Pocket", "Pocket010")
pocket11.Profile = sketch22
pocket11.Length = 2

sketch23 = body.newObject("Sketcher::SketchObject", "Sketch022")
sketch23.AttachmentSupport = (doc.getObject("YZ_Plane"), [""])
sketch23.MapMode = "FlatFace"
sketch23.AttachmentOffset = App.Placement(App.Vector(0, 0, 10.25), App.Rotation())
sketch23.addGeometry([
    Part.LineSegment(App.Vector(-28, 29, 0), App.Vector(-28, 13, 0)),
    Part.LineSegment(App.Vector(-28, 13, 0), App.Vector(28, 13, 0)),
    Part.LineSegment(App.Vector(28, 13, 0), App.Vector(28, 29, 0)),
    Part.LineSegment(App.Vector(28, 29, 0), App.Vector(-28, 29, 0)),
], False)
sketch23.addConstraint([
    Sketcher.Constraint("Coincident", 0, 2, 1, 1),
    Sketcher.Constraint("Coincident", 1, 2, 2, 1),
    Sketcher.Constraint("Coincident", 2, 2, 3, 1),
    Sketcher.Constraint("Coincident", 3, 2, 0, 1),
    Sketcher.Constraint("Vertical", 0),
    Sketcher.Constraint("Horizontal", 1),
    Sketcher.Constraint("Vertical", 2),
    Sketcher.Constraint("Horizontal", 3),
    Sketcher.Constraint("DistanceY", -1, 1, 0, 2, Q("13 mm")),
    Sketcher.Constraint("DistanceX", 1, 1, 1, 2, Q("55.185806 mm")),
    Sketcher.Constraint("DistanceY", 0, 2, 0, 1, Q("15.976863 mm")),
    Sketcher.Constraint("DistanceX", -1, 1, 1, 2, Q("27.59389 mm")),
])
pocket12 = body.newObject("PartDesign::Pocket", "Pocket011")
pocket12.Profile = sketch23
pocket12.Length = 16

sketch24 = body.newObject("Sketcher::SketchObject", "Sketch023")
sketch24.AttachmentSupport = (doc.getObject("YZ_Plane"), [""])
sketch24.MapMode = "FlatFace"
sketch24.AttachmentOffset = App.Placement(App.Vector(0, 0, 10.25), App.Rotation())
sketch24.addGeometry([
    Part.Circle(App.Vector(24.6, 31, 0), App.Vector(0, 0, 1), 1),
    Part.Circle(App.Vector(-24.6, 31, 0), App.Vector(0, 0, 1), 1),
], False)
sketch24.addConstraint([
    Sketcher.Constraint("Equal", 0, 1),
    Sketcher.Constraint("Symmetric", 0, 3, 1, 3, -2),
    Sketcher.Constraint("Diameter", 0, Q("2 mm")),
    Sketcher.Constraint("DistanceY", -1, 1, 0, 3, Q("31 mm")),
    Sketcher.Constraint("DistanceX", -1, 1, 0, 3, Q("24.570852 mm")),
])
pocket13 = body.newObject("PartDesign::Pocket", "Pocket012")
pocket13.Profile = sketch24
pocket13.Length = 16

sketch25 = body.newObject("Sketcher::SketchObject", "Sketch024")
sketch25.AttachmentSupport = (doc.getObject("YZ_Plane"), [""])
sketch25.MapMode = "FlatFace"
sketch25.AttachmentOffset = App.Placement(App.Vector(0, 0, 10.25), App.Rotation())
sketch25.addGeometry([
    Part.Circle(App.Vector(24.6, 3, 0), App.Vector(0, 0, 1), 1),
    Part.Circle(App.Vector(-24.6, 3, 0), App.Vector(0, 0, 1), 1),
], False)
sketch25.addConstraint([
    Sketcher.Constraint("Equal", 0, 1),
    Sketcher.Constraint("Symmetric", 0, 3, 1, 3, -2),
    Sketcher.Constraint("Diameter", 0, Q("2 mm")),
    Sketcher.Constraint("DistanceY", -1, 1, 0, 3, Q("3 mm")),
    Sketcher.Constraint("DistanceX", -1, 1, 0, 3, Q("24.570852 mm")),
])
pocket14 = body.newObject("PartDesign::Pocket", "Pocket013")
pocket14.Profile = sketch25
pocket14.Length = 5

sketch26 = body.newObject("Sketcher::SketchObject", "Sketch025")
sketch26.AttachmentSupport = (doc.getObject("XZ_Plane"), [""])
sketch26.MapMode = "FlatFace"
sketch26.AttachmentOffset = App.Placement(App.Vector(0, 0, 37.570852), App.Rotation())
sketch26.addGeometry(Part.Circle(App.Vector(0, 5, 0), App.Vector(0, 0, 1), 2.6), False)
sketch26.addConstraint([
    Sketcher.Constraint("PointOnObject", 0, 3, -2),
    Sketcher.Constraint("Diameter", 0, Q("5.3 mm")),
    Sketcher.Constraint("DistanceY", -1, 1, 0, 3, Q("5 mm")),
])
pocket15 = body.newObject("PartDesign::Pocket", "Pocket014")
pocket15.Profile = sketch26
pocket15.Length = 10

sketch27 = body.newObject("Sketcher::SketchObject", "Sketch026")
sketch27.AttachmentSupport = (doc.getObject("XZ_Plane"), [""])
sketch27.MapMode = "FlatFace"
sketch27.AttachmentOffset = App.Placement(App.Vector(0, 0, -27.570852), App.Rotation())
sketch27.addGeometry(Part.Circle(App.Vector(0, 5, 0), App.Vector(0, 0, 1), 2.6), False)
sketch27.addConstraint([
    Sketcher.Constraint("PointOnObject", 0, 3, -2),
    Sketcher.Constraint("Diameter", 0, Q("5.3 mm")),
    Sketcher.Constraint("DistanceY", -1, 1, 0, 3, Q("5 mm")),
])
pocket16 = body.newObject("PartDesign::Pocket", "Pocket015")
pocket16.Profile = sketch27
pocket16.Length = 10

doc.recompute()
